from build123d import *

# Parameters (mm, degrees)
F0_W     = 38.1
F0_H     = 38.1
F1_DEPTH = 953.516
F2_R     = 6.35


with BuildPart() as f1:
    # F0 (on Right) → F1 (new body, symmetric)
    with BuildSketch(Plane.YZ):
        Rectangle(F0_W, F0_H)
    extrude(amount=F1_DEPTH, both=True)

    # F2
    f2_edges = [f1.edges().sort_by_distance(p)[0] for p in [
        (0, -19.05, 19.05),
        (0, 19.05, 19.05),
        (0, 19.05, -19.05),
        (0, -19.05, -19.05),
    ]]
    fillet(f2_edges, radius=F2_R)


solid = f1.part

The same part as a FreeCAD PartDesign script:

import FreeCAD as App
import Part
import Sketcher

V = App.Vector
Q = App.Units.Quantity


def edges_at(feature, points):
    """Names of the edges that pass closest to the given points."""
    edges = feature.Shape.Edges
    near = lambda p: min(range(len(edges)), key=lambda i: edges[i].distToShape(Part.Vertex(*p))[0])
    return sorted({f"Edge{near(p) + 1}" for p in points})

doc = App.newDocument("Part")
body = doc.addObject("PartDesign::Body", "Body")

sketch1 = body.newObject("Sketcher::SketchObject", "Sketch")
sketch1.AttachmentSupport = (doc.getObject("YZ_Plane"), [""])
sketch1.MapMode = "FlatFace"
sketch1.addGeometry([
    Part.LineSegment(V(-19.05, 19.05, 0), V(-19.05, -19.05, 0)),
    Part.LineSegment(V(-19.05, -19.05, 0), V(19.05, -19.05, 0)),
    Part.LineSegment(V(19.05, -19.05, 0), V(19.05, 19.05, 0)),
    Part.LineSegment(V(19.05, 19.05, 0), V(-19.05, 19.05, 0)),
], False)
sketch1.addConstraint([
    Sketcher.Constraint("Coincident", 0, 2, 1, 1),
    Sketcher.Constraint("Coincident", 1, 2, 2, 1),
    Sketcher.Constraint("Coincident", 2, 2, 3, 1),
    Sketcher.Constraint("Coincident", 3, 2, 0, 1),
    Sketcher.Constraint("Vertical", 0),
    Sketcher.Constraint("Horizontal", 1),
    Sketcher.Constraint("Vertical", 2),
    Sketcher.Constraint("Horizontal", 3),
    Sketcher.Constraint("Symmetric", 0, 2, 2, 2, -1, 1),
    Sketcher.Constraint("Equal", 3, 0),
    Sketcher.Constraint("DistanceX", 1, 1, 1, 2, Q("1.5 in")),
])
pad1 = body.newObject("PartDesign::Pad", "Pad")
pad1.Profile = sketch1
pad1.Length = Q("75.08 in")
pad1.Midplane = True
doc.recompute()

fillet = body.newObject("PartDesign::Fillet", "Fillet")
fillet.Base = (pad1, edges_at(pad1, [
    (0, -19.05, 19.05),
    (0, 19.05, 19.05),
    (0, 19.05, -19.05),
    (0, -19.05, -19.05),
]))
fillet.Radius = Q("0.25 in")

doc.recompute()
